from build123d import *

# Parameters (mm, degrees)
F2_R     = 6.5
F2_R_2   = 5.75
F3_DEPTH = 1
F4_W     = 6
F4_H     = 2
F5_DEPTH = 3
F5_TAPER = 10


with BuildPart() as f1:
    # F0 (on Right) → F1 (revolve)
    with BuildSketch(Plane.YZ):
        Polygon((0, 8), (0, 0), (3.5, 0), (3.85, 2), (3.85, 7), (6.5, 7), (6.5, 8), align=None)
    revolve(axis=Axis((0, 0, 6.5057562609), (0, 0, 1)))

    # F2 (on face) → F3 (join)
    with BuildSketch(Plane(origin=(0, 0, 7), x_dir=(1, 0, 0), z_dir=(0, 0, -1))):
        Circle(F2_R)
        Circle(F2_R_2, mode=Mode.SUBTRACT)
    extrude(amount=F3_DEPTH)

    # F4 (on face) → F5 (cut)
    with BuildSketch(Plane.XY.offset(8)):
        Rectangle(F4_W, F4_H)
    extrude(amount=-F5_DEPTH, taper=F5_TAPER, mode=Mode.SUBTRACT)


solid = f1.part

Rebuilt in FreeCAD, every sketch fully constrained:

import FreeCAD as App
import Part
import Sketcher
from FreeCAD import Vector

doc = App.newDocument("Part")
params = doc.addObject("Spreadsheet::Sheet", "Params")
for row, (alias, value) in enumerate([
    ("sketch1_height", "8 mm"),
    ("sketch1_height2", "5 mm"),
    ("sketch1_height3", "1 mm"),
    ("sketch1_width", "3.5 mm"),
    ("sketch1_width2", "6.5 mm"),
    ("revolution_angle", "360 deg"),
    ("sketch2_diameter", "13 mm"),
    ("sketch2_diameter2", "11.5 mm"),
    ("pad1_length", "1 mm"),
    ("sketch3_width", "6 mm"),
    ("sketch3_height", "2 mm"),
    ("pocket1_length", "3 mm"),
    ("pocket1_taper", "-10 deg"),
], start=1):
    params.set(f"A{row}", alias)
    params.set(f"B{row}", "=" + value)
    params.setAlias(f"B{row}", alias)

body = doc.addObject("PartDesign::Body", "Body")

sketch1 = doc.addObject("Sketcher::SketchObject", "Sketch")
body.addObject(sketch1)
sketch1.AttachmentSupport = (doc.YZ_Plane, [""])
sketch1.MapMode = "FlatFace"
sketch1.addGeometry([
    Part.LineSegment(Vector(0, 8, 0), Vector(0, 0, 0)),
    Part.LineSegment(Vector(0, 0, 0), Vector(3.5, 0, 0)),
    Part.LineSegment(Vector(3.5, 0, 0), Vector(3.85, 2, 0)),
    Part.LineSegment(Vector(3.85, 2, 0), Vector(3.85, 7, 0)),
    Part.LineSegment(Vector(3.85, 7, 0), Vector(6.5, 7, 0)),
    Part.LineSegment(Vector(6.5, 7, 0), Vector(6.5, 8, 0)),
    Part.LineSegment(Vector(6.5, 8, 0), Vector(0, 8, 0)),
], False)
sketch1.addConstraint([
    Sketcher.Constraint("Coincident", 0, 2, 1, 1),
    Sketcher.Constraint("Coincident", 1, 2, 2, 1),
    Sketcher.Constraint("Coincident", 2, 2, 3, 1),
    Sketcher.Constraint("Coincident", 3, 2, 4, 1),
    Sketcher.Constraint("Coincident", 4, 2, 5, 1),
    Sketcher.Constraint("Coincident", 5, 2, 6, 1),
    Sketcher.Constraint("Coincident", 6, 2, 0, 1),
    Sketcher.Constraint("Vertical", 0),
    Sketcher.Constraint("Horizontal", 1),
    Sketcher.Constraint("Vertical", 3),
    Sketcher.Constraint("Horizontal", 4),
    Sketcher.Constraint("Vertical", 5),
    Sketcher.Constraint("Horizontal", 6),
    Sketcher.Constraint("Coincident", 0, 2, -1, 1),
    Sketcher.Constraint("DistanceY", 0, 2, 0, 1, 8.0),
    Sketcher.Constraint("DistanceY", 3, 1, 3, 2, 5.0),
    Sketcher.Constraint("DistanceY", 5, 1, 5, 2, 1.0),
    Sketcher.Constraint("DistanceX", 1, 1, 1, 2, 3.5),
    Sketcher.Constraint("DistanceX", 6, 2, 6, 1, 6.5),
    Sketcher.Constraint("DistanceX", 4, 1, 4, 2, 2.65),
])
sketch1.setExpression("Constraints[14]", "Params.sketch1_height")
sketch1.setExpression("Constraints[15]", "Params.sketch1_height2")
sketch1.setExpression("Constraints[16]", "Params.sketch1_height3")
sketch1.setExpression("Constraints[17]", "Params.sketch1_width")
sketch1.setExpression("Constraints[18]", "Params.sketch1_width2")
revolution = doc.addObject("PartDesign::Revolution", "Revolution")
body.addObject(revolution)
revolution.Profile = sketch1
revolution.ReferenceAxis = (sketch1, ["V_Axis"])
revolution.setExpression("Angle", "Params.revolution_angle")

sketch2 = doc.addObject("Sketcher::SketchObject", "Sketch001")
body.addObject(sketch2)
sketch2.AttachmentSupport = (doc.XY_Plane, [""])
sketch2.MapMode = "FlatFace"
sketch2.AttachmentOffset = App.Placement(Vector(0, 0, 7), App.Rotation())
sketch2.addGeometry([
    Part.Circle(Vector(0, 0, 0), Vector(0, 0, 1), 6.5),
    Part.Circle(Vector(0, 0, 0), Vector(0, 0, 1), 5.75),
], False)
sketch2.addConstraint([
    Sketcher.Constraint("Coincident", 0, 3, -1, 1),
    Sketcher.Constraint("Coincident", 1, 3, -1, 1),
    Sketcher.Constraint("Diameter", 0, 13.0),
    Sketcher.Constraint("Diameter", 1, 11.5),
])
sketch2.setExpression("Constraints[2]", "Params.sketch2_diameter")
sketch2.setExpression("Constraints[3]", "Params.sketch2_diameter2")
pad1 = doc.addObject("PartDesign::Pad", "Pad")
body.addObject(pad1)
pad1.Profile = sketch2
pad1.setExpression("Length", "Params.pad1_length")
pad1.Reversed = True

sketch3 = doc.addObject("Sketcher::SketchObject", "Sketch002")
body.addObject(sketch3)
sketch3.AttachmentSupport = (doc.XY_Plane, [""])
sketch3.MapMode = "FlatFace"
sketch3.AttachmentOffset = App.Placement(Vector(0, 0, 8), App.Rotation())
sketch3.addGeometry([
    Part.LineSegment(Vector(-3, 1, 0), Vector(-3, -1, 0)),
    Part.LineSegment(Vector(-3, -1, 0), Vector(3, -1, 0)),
    Part.LineSegment(Vector(3, -1, 0), Vector(3, 1, 0)),
    Part.LineSegment(Vector(3, 1, 0), Vector(-3, 1, 0)),
], False)
sketch3.addConstraint([
    Sketcher.Constraint("Coincident", 0, 2, 1, 1),
    Sketcher.Constraint("Coincident", 1, 2, 2, 1),
    Sketcher.Constraint("Coincident", 2, 2, 3, 1),
    Sketcher.Constraint("Coincident", 3, 2, 0, 1),
    Sketcher.Constraint("Vertical", 0),
    Sketcher.Constraint("Horizontal", 1),
    Sketcher.Constraint("Vertical", 2),
    Sketcher.Constraint("Horizontal", 3),
    Sketcher.Constraint("Symmetric", 0, 2, 2, 2, -1, 1),
    Sketcher.Constraint("DistanceX", 1, 1, 1, 2, 6.0),
    Sketcher.Constraint("DistanceY", 0, 2, 0, 1, 2.0),
])
sketch3.setExpression("Constraints[9]", "Params.sketch3_width")
sketch3.setExpression("Constraints[10]", "Params.sketch3_height")
pocket1 = doc.addObject("PartDesign::Pocket", "Pocket")
body.addObject(pocket1)
pocket1.Profile = sketch3
pocket1.setExpression("Length", "Params.pocket1_length")
pocket1.setExpression("TaperAngle", "Params.pocket1_taper")

doc.recompute()
